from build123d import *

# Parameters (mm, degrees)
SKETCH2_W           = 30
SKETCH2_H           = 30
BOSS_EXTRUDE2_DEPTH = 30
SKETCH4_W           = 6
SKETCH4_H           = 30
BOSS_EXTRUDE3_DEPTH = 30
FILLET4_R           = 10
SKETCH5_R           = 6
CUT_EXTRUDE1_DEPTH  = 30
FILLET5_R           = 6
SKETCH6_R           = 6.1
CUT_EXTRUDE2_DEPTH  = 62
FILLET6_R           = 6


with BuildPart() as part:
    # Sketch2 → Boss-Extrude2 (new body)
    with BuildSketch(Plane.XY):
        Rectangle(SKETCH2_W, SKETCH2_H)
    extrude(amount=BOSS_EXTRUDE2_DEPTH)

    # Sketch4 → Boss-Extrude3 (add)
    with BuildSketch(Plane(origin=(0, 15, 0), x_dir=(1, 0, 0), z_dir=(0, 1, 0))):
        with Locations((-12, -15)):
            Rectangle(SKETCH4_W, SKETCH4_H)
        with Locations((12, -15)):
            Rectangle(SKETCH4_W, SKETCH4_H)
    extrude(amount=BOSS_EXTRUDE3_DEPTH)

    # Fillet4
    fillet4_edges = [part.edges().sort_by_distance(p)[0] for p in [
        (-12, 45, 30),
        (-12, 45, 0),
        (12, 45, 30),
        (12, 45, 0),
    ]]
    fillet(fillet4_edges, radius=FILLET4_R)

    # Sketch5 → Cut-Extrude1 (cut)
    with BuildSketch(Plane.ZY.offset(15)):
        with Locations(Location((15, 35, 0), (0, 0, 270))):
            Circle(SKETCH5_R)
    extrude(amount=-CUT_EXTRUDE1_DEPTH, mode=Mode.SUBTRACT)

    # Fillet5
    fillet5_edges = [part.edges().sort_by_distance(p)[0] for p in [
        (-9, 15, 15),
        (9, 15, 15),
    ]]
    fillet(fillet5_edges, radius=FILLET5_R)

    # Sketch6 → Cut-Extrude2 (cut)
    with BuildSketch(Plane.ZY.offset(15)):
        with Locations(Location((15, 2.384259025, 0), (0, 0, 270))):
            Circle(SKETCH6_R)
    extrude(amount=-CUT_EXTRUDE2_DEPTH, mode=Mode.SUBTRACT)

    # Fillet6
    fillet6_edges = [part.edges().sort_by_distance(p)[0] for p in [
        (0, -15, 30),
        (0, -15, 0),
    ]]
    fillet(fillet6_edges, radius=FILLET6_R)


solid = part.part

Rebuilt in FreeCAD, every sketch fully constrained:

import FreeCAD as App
import Part
import Sketcher

V = App.Vector
Q = App.Units.Quantity


def edges_at(feature, points):
    """Names of the edges that pass closest to the given points."""
    edges = feature.Shape.Edges
    near = lambda p: min(range(len(edges)), key=lambda i: edges[i].distToShape(Part.Vertex(*p))[0])
    return sorted({f"Edge{near(p) + 1}" for p in points})


def add_polygon(sketch, points):
    """Adds a closed chain of lines whose ends are joined by coincident constraints."""
    first, n = sketch.GeometryCount, len(points)
    for a, b in zip(points, points[1:] + points[:1]):
        sketch.addGeometry(Part.LineSegment(App.Vector(*a, 0), App.Vector(*b, 0)), False)
    for i in range(n):
        sketch.addConstraint(Sketcher.Constraint("Coincident", first + i, 2, first + (i + 1) % n, 1))

doc = App.newDocument("Part")
body = doc.addObject("PartDesign::Body", "Body")

# Sketch on XY plane
sketch1 = body.newObject("Sketcher::SketchObject", "Sketch")
sketch1.AttachmentSupport = (doc.getObject("XY_Plane"), [""])
sketch1.MapMode = "FlatFace"
add_polygon(sketch1, [(-15, 15), (-15, -15), (15, -15), (15, 15)])  # lines 0-3
sketch1.addConstraint([
    Sketcher.Constraint("Vertical", 0),
    Sketcher.Constraint("Horizontal", 1),
    Sketcher.Constraint("Vertical", 2),
    Sketcher.Constraint("Horizontal", 3),
    Sketcher.Constraint("Symmetric", 0, 2, 2, 2, -1, 1),
    Sketcher.Constraint("Equal", 3, 0),
    Sketcher.Constraint("DistanceX", 1, 1, 1, 2, Q("30 mm")),
])
pad1 = body.newObject("PartDesign::Pad", "Pad")
pad1.Profile = sketch1
pad1.Length = 30

# Sketch on XZ plane
sketch2 = body.newObject("Sketcher::SketchObject", "Sketch001")
sketch2.AttachmentSupport = (doc.getObject("XZ_Plane"), [""])
sketch2.MapMode = "FlatFace"
sketch2.AttachmentOffset = App.Placement(V(0, 0, -15), App.Rotation())
add_polygon(sketch2, [(-15, 0), (-15, 30), (-9, 30), (-9, 0)])  # lines 0-3
add_polygon(sketch2, [(9, 0), (9, 30), (15, 30), (15, 0)])  # lines 4-7
sketch2.addConstraint([
    Sketcher.Constraint("Vertical", 0),
    Sketcher.Constraint("Horizontal", 1),
    Sketcher.Constraint("Vertical", 2),
    Sketcher.Constraint("Horizontal", 3),
    Sketcher.Constraint("Vertical", 4),
    Sketcher.Constraint("Horizontal", 5),
    Sketcher.Constraint("Vertical", 6),
    Sketcher.Constraint("Horizontal", 7),
    Sketcher.Constraint("Symmetric", 3, 2, 6, 2, -1, 1),
    Sketcher.Constraint("Symmetric", 1, 2, 4, 2, -2),
    Sketcher.Constraint("PointOnObject", 2, 2, -1),
    Sketcher.Constraint("DistanceX", 1, 1, 1, 2, Q("6 mm")),
    Sketcher.Constraint("DistanceY", 0, 1, 0, 2, Q("30 mm")),
    Sketcher.Constraint("DistanceX", 0, 2, -1, 1, Q("15 mm")),
])
pad2 = body.newObject("PartDesign::Pad", "Pad001")
pad2.Profile = sketch2
pad2.Length = 30
pad2.Reversed = True
doc.recompute()

fillet = body.newObject("PartDesign::Fillet", "Fillet")
fillet.Base = (pad2, edges_at(pad2, [
    (-12, 45, 30),
    (-12, 45, 0),
    (12, 45, 30),
    (12, 45, 0),
]))
fillet.Radius = 10

# Sketch on YZ plane
sketch3 = body.newObject("Sketcher::SketchObject", "Sketch002")
sketch3.AttachmentSupport = (doc.getObject("YZ_Plane"), [""])
sketch3.MapMode = "FlatFace"
sketch3.AttachmentOffset = App.Placement(V(0, 0, -15), App.Rotation())
sketch3.addGeometry(Part.Circle(V(35, 15, 0), V(0, 0, 1), 6), False)
sketch3.addConstraint([
    Sketcher.Constraint("Diameter", 0, Q("12 mm")),
    Sketcher.Constraint("DistanceX", -1, 1, 0, 3, Q("35 mm")),
    Sketcher.Constraint("DistanceY", -1, 1, 0, 3, Q("15 mm")),
])
pocket1 = body.newObject("PartDesign::Pocket", "Pocket")
pocket1.Profile = sketch3
pocket1.Length = 30
pocket1.Reversed = True
doc.recompute()

fillet2 = body.newObject("PartDesign::Fillet", "Fillet001")
fillet2.Base = (pocket1, edges_at(pocket1, [(-9, 15, 15), (9, 15, 15)]))
fillet2.Radius = 6

# Sketch on YZ plane
sketch4 = body.newObject("Sketcher::SketchObject", "Sketch003")
sketch4.AttachmentSupport = (doc.getObject("YZ_Plane"), [""])
sketch4.MapMode = "FlatFace"
sketch4.AttachmentOffset = App.Placement(V(0, 0, -15), App.Rotation())
sketch4.addGeometry(Part.Circle(V(2.384259, 15, 0), V(0, 0, 1), 6.1), False)
sketch4.addConstraint([
    Sketcher.Constraint("Diameter", 0, Q("12.2 mm")),
    Sketcher.Constraint("DistanceY", -1, 1, 0, 3, Q("15 mm")),
    Sketcher.Constraint("DistanceX", -1, 1, 0, 3, Q("2.384259 mm")),
])
pocket2 = body.newObject("PartDesign::Pocket", "Pocket001")
pocket2.Profile = sketch4
pocket2.Length = 62
pocket2.Reversed = True
doc.recompute()

fillet3 = body.newObject("PartDesign::Fillet", "Fillet002")
fillet3.Base = (pocket2, edges_at(pocket2, [(0, -15, 30), (0, -15, 0)]))
fillet3.Radius = 6

doc.recompute()
